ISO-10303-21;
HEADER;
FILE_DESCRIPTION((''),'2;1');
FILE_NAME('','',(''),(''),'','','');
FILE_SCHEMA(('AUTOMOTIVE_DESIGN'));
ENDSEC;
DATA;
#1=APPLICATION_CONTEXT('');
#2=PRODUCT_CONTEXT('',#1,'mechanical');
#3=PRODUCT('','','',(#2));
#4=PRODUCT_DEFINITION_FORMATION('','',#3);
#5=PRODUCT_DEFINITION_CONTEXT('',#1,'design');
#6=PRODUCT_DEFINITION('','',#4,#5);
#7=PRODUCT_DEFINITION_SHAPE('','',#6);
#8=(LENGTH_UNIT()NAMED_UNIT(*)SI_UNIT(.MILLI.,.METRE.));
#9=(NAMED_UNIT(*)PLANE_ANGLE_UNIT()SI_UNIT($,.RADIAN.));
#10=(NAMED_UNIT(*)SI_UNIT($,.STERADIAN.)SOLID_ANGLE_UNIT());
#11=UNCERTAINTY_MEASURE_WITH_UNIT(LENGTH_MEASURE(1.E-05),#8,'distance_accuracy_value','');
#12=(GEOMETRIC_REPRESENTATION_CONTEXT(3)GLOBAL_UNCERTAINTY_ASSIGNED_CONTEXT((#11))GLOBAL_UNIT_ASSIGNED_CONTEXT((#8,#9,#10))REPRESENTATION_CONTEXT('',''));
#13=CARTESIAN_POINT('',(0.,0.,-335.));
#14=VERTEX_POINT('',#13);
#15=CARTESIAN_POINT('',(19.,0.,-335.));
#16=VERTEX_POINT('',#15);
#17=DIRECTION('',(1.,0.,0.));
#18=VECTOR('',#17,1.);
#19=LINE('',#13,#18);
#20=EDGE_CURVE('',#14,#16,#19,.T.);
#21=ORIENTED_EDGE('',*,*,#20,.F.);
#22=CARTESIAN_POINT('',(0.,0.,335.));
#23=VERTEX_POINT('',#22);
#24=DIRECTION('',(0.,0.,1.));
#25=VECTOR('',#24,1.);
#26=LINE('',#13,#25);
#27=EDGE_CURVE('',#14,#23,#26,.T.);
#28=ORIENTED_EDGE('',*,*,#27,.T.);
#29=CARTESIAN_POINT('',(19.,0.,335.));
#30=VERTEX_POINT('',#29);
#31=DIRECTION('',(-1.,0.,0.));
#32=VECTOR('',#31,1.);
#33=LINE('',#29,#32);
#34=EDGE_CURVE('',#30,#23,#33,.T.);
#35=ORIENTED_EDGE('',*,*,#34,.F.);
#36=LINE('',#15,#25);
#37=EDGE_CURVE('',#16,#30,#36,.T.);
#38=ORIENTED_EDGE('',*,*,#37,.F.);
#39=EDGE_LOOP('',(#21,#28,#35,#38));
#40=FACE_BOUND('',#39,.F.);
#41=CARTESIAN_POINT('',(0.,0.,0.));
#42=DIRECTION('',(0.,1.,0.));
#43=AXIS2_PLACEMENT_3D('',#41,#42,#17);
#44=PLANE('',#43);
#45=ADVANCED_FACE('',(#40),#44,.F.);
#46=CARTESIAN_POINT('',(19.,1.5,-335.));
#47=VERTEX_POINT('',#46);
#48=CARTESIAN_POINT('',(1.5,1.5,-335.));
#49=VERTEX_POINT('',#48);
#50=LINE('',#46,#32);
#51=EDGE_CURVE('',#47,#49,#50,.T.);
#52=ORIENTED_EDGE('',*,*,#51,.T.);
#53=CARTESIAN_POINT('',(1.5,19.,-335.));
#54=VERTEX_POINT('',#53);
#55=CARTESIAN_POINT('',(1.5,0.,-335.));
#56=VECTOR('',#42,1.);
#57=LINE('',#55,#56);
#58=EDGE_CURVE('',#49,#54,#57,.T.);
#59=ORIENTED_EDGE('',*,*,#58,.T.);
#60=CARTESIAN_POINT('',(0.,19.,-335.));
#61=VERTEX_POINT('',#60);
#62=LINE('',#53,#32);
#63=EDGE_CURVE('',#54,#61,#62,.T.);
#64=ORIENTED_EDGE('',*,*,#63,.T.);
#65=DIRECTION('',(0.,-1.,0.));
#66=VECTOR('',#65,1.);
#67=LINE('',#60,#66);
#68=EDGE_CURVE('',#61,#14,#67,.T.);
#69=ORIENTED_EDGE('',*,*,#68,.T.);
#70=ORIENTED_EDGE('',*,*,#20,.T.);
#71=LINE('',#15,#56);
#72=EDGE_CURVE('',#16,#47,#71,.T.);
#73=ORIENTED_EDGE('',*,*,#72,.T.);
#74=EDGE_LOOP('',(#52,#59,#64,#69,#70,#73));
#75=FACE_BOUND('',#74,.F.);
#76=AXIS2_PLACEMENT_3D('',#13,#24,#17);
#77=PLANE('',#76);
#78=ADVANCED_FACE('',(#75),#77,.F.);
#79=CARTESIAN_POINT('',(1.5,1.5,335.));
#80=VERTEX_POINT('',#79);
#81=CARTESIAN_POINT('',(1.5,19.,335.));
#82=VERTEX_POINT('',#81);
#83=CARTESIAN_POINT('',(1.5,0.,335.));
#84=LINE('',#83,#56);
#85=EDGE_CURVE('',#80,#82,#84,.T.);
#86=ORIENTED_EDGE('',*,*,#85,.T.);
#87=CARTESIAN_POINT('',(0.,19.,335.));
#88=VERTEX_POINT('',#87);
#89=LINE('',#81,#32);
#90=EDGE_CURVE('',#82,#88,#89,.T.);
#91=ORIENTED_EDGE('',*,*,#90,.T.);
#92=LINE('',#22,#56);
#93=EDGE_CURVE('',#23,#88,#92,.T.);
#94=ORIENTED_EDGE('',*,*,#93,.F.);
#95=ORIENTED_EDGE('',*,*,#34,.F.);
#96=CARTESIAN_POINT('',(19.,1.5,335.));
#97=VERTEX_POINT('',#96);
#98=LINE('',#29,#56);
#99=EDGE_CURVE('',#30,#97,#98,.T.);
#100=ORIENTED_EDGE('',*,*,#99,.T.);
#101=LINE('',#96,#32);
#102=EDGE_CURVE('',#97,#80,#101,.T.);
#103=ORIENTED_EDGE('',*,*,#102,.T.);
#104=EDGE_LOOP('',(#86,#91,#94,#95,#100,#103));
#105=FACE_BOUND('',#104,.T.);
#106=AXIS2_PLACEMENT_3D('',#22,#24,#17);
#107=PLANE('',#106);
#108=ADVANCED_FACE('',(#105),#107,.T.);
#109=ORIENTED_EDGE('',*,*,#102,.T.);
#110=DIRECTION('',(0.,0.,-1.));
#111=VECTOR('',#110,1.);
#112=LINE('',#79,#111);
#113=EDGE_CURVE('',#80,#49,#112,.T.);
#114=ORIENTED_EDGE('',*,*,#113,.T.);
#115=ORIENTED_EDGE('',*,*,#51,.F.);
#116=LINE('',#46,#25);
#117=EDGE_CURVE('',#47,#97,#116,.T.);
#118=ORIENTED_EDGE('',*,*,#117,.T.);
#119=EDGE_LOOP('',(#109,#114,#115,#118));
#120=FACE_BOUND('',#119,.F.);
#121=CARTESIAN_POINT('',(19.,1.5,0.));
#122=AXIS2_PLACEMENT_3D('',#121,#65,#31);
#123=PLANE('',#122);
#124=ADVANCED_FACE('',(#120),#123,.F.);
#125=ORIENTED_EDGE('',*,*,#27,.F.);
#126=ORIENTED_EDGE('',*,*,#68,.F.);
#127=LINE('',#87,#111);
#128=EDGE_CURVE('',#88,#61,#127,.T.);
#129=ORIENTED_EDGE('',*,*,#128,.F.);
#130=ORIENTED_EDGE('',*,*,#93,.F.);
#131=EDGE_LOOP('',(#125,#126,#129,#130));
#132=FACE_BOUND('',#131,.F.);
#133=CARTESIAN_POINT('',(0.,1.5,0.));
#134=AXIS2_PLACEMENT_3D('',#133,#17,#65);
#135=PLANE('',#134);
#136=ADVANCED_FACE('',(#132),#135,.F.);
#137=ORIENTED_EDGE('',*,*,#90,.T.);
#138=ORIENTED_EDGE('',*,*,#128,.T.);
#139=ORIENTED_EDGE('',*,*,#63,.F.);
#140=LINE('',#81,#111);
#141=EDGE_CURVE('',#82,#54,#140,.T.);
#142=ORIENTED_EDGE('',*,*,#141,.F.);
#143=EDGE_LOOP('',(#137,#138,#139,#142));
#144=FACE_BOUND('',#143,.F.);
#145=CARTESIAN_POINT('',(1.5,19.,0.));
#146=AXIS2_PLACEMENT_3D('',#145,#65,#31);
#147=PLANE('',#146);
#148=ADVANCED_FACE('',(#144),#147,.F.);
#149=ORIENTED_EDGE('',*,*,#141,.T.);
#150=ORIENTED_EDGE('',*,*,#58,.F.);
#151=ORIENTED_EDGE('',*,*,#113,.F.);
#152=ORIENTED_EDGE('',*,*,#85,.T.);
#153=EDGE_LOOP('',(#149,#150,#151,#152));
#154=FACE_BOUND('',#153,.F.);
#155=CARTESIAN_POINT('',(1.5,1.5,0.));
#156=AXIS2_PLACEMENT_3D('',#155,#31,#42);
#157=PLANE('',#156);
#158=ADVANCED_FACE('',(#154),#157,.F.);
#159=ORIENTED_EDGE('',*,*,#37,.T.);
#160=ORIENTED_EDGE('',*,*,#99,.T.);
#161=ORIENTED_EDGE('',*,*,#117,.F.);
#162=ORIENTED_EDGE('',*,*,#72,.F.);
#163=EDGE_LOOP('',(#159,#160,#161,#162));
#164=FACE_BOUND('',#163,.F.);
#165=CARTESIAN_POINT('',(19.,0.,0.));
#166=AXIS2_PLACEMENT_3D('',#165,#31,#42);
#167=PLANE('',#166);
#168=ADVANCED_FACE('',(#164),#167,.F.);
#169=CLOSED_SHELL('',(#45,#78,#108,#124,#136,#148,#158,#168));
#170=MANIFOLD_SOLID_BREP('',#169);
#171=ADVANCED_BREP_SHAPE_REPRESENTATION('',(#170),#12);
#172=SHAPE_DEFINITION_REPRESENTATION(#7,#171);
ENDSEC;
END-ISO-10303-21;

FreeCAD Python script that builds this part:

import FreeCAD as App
import Part
import Sketcher

V = App.Vector

doc = App.newDocument("Part")
params = doc.addObject("Spreadsheet::Sheet", "Params")
for row, (alias, value) in enumerate([
    ("sketch1_width", "19 mm"),
    ("sketch1_width2", "1.5 mm"),
    ("pad1_length", "670 mm"),
], start=1):
    params.set(f"A{row}", alias)
    params.set(f"B{row}", "=" + value)
    params.setAlias(f"B{row}", alias)

body = doc.addObject("PartDesign::Body", "Body")

sketch1 = body.newObject("Sketcher::SketchObject", "Sketch")
sketch1.AttachmentSupport = (doc.getObject("XY_Plane"), [""])
sketch1.MapMode = "FlatFace"
sketch1.addGeometry([
    Part.LineSegment(V(0, 0, 0), V(19, 0, 0)),
    Part.LineSegment(V(19, 0, 0), V(19, 1.5, 0)),
    Part.LineSegment(V(19, 1.5, 0), V(1.5, 1.5, 0)),
    Part.LineSegment(V(1.5, 1.5, 0), V(1.5, 19, 0)),
    Part.LineSegment(V(1.5, 19, 0), V(0, 19, 0)),
    Part.LineSegment(V(0, 19, 0), V(0, 0, 0)),
], False)
sketch1.addConstraint([
    Sketcher.Constraint("Coincident", 0, 2, 1, 1),
    Sketcher.Constraint("Coincident", 1, 2, 2, 1),
    Sketcher.Constraint("Coincident", 2, 2, 3, 1),
    Sketcher.Constraint("Coincident", 3, 2, 4, 1),
    Sketcher.Constraint("Coincident", 4, 2, 5, 1),
    Sketcher.Constraint("Coincident", 5, 2, 0, 1),
    Sketcher.Constraint("Horizontal", 0),
    Sketcher.Constraint("Vertical", 1),
    Sketcher.Constraint("Horizontal", 2),
    Sketcher.Constraint("Vertical", 3),
    Sketcher.Constraint("Horizontal", 4),
    Sketcher.Constraint("Vertical", 5),
    Sketcher.Constraint("Coincident", 5, 2, -1, 1),
    Sketcher.Constraint("Equal", 4, 1),
    Sketcher.Constraint("Equal", 2, 3),
    Sketcher.Constraint("DistanceX", 0, 1, 0, 2, 19.0),
    Sketcher.Constraint("DistanceX", 4, 2, 4, 1, 1.5),
])
sketch1.setExpression("Constraints[15]", "Params.sketch1_width")
sketch1.setExpression("Constraints[16]", "Params.sketch1_width2")
pad1 = body.newObject("PartDesign::Pad", "Pad")
pad1.Profile = sketch1
pad1.setExpression("Length", "Params.pad1_length")
pad1.Midplane = True

doc.recompute()
